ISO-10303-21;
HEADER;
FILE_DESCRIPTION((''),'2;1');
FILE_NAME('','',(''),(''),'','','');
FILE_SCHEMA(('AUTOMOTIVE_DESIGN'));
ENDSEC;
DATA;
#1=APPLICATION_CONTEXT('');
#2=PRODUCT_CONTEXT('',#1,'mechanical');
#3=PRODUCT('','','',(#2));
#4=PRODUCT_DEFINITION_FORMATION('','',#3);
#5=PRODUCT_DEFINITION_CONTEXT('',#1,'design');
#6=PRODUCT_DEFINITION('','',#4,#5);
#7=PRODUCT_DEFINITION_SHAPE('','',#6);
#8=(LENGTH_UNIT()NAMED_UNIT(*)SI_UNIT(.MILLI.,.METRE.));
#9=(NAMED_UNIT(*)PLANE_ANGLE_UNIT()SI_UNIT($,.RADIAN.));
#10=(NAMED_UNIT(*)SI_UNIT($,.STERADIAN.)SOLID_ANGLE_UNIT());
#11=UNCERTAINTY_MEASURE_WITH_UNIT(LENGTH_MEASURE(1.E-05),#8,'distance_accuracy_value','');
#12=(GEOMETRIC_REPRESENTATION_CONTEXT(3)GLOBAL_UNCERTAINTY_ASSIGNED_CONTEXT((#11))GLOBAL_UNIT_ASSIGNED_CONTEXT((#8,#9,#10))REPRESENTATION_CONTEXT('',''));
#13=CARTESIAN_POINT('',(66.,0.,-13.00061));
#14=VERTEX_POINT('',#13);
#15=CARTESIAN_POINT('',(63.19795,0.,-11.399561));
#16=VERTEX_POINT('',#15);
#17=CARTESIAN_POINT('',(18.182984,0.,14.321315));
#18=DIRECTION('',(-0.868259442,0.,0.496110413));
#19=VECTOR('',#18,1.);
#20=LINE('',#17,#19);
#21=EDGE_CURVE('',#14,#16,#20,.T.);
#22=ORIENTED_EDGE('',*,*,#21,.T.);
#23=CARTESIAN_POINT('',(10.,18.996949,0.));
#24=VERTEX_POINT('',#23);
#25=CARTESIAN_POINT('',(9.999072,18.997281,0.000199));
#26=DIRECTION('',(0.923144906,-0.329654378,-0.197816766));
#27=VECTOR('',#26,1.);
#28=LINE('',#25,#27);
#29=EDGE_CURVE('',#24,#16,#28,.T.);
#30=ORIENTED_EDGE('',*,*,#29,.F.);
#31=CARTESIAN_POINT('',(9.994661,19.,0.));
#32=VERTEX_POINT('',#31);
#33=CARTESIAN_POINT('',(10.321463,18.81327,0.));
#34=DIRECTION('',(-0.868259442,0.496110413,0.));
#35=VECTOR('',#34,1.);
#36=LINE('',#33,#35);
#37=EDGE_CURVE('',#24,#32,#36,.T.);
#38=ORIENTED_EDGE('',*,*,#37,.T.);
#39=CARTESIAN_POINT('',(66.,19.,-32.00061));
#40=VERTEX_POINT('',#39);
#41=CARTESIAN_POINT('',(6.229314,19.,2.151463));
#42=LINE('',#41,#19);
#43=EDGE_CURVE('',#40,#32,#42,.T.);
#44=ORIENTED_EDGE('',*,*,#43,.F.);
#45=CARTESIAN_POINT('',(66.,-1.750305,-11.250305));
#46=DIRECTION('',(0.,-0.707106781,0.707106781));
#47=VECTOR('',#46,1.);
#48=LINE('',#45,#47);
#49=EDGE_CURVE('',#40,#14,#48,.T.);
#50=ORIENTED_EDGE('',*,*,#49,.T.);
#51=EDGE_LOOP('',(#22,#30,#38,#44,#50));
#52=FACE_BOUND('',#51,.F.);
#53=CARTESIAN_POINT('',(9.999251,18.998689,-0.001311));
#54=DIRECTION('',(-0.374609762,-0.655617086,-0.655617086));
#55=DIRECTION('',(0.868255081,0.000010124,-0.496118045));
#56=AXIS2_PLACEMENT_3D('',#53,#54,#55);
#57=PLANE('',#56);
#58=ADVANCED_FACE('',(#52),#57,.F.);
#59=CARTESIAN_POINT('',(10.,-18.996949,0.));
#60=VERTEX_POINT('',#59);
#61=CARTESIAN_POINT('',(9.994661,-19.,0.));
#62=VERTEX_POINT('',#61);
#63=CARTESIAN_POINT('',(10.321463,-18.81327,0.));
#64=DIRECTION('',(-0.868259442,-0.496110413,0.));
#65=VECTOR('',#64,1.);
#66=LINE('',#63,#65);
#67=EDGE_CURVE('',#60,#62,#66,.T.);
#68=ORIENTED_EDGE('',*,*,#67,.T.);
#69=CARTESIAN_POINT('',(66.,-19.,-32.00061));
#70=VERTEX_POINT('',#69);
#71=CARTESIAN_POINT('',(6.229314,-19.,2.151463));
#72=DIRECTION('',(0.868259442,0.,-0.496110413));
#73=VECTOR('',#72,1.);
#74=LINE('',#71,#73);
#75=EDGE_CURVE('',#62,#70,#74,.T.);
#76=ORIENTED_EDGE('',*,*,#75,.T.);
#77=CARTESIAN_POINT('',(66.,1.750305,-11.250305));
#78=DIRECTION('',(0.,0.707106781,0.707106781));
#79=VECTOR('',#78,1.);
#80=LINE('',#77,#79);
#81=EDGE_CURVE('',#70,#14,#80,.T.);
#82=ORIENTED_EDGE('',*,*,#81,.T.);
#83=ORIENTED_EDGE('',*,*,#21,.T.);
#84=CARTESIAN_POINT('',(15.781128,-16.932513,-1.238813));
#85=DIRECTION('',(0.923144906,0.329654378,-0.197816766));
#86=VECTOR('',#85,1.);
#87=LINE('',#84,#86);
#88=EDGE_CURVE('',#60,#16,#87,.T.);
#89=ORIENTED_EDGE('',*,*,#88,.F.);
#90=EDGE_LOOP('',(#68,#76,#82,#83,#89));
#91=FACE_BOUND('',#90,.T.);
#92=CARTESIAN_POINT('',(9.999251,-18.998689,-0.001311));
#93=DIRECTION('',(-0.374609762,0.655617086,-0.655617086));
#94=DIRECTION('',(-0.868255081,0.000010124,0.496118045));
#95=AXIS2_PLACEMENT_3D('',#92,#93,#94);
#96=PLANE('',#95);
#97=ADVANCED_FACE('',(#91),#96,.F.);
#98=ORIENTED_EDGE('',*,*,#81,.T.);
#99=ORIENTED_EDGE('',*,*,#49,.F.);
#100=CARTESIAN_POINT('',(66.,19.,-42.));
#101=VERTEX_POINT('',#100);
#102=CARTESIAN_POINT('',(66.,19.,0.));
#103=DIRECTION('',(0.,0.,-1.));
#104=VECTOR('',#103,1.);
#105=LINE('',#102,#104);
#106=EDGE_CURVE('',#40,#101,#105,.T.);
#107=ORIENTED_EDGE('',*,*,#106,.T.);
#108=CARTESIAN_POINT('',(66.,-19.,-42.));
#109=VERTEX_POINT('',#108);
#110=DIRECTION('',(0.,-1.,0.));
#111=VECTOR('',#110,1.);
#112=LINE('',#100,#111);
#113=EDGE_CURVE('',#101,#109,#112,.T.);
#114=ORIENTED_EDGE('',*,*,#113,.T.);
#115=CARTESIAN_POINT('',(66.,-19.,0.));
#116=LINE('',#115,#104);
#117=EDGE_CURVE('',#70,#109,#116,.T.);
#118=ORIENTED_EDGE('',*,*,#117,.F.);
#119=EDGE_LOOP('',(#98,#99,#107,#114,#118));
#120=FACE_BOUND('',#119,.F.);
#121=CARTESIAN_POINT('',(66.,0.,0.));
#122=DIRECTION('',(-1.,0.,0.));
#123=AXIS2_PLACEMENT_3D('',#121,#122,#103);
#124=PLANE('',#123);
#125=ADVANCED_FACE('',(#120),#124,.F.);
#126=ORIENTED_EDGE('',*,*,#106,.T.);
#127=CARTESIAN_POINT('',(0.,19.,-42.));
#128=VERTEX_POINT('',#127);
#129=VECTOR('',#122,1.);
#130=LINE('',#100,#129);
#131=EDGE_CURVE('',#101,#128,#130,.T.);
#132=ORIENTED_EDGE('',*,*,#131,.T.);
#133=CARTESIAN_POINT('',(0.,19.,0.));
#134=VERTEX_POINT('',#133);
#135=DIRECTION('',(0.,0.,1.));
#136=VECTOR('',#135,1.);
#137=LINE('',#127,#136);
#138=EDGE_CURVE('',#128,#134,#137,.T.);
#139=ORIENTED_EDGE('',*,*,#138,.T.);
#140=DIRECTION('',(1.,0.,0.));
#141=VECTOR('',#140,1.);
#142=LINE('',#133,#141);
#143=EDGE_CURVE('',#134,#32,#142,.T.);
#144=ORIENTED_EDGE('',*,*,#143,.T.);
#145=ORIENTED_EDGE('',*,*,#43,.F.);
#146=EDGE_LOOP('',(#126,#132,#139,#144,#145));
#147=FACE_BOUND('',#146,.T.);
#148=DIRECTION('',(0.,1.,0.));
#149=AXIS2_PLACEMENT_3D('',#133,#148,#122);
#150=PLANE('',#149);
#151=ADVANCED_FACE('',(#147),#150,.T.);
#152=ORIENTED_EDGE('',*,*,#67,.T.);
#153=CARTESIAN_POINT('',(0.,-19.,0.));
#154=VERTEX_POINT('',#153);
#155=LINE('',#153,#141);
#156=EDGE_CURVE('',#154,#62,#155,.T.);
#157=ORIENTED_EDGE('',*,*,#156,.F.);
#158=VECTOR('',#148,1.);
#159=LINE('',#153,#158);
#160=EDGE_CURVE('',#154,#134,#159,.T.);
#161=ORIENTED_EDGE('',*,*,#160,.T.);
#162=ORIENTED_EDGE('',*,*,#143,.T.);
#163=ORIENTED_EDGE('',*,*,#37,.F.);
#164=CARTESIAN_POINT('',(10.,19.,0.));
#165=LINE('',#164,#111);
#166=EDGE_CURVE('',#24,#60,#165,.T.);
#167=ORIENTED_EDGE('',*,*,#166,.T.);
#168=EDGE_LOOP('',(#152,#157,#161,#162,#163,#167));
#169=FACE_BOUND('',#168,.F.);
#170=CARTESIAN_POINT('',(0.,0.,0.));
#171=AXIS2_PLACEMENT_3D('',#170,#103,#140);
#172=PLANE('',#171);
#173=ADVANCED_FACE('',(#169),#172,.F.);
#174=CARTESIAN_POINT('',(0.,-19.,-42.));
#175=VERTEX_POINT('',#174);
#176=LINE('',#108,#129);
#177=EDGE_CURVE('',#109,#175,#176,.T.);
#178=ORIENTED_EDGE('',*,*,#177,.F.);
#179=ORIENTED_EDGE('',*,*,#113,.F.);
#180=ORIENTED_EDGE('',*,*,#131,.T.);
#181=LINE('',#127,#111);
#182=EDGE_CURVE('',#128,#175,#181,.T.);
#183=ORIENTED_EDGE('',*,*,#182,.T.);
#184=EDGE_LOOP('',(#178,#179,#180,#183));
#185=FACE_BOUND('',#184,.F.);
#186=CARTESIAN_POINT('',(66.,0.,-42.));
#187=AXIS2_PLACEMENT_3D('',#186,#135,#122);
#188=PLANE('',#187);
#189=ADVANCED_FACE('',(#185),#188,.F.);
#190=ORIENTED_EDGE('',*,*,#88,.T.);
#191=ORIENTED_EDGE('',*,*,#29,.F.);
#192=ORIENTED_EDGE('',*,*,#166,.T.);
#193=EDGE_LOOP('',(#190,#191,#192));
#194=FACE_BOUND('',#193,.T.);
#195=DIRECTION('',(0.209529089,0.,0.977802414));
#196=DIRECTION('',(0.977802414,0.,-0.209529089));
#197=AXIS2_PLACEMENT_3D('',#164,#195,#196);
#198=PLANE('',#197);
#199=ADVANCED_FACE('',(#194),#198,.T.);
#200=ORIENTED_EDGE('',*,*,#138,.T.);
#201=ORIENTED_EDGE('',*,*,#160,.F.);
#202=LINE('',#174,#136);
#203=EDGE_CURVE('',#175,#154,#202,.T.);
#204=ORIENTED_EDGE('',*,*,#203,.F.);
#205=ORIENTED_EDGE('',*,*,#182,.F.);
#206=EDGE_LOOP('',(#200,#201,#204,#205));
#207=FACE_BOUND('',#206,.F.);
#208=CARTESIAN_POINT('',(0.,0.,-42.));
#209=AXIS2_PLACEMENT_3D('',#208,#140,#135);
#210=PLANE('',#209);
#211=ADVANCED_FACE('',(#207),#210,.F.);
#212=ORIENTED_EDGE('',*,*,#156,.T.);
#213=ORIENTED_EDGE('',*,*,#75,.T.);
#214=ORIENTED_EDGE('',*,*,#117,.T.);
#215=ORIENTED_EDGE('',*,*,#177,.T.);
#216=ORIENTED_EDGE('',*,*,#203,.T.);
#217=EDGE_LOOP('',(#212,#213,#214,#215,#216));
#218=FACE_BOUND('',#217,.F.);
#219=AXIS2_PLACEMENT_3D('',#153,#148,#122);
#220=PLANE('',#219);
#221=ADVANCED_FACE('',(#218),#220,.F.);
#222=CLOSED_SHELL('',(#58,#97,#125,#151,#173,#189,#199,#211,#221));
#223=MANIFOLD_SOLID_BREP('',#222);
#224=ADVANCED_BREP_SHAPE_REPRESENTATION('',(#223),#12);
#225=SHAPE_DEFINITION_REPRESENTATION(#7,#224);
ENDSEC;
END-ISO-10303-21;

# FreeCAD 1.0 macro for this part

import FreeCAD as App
import Part
import Sketcher

V = App.Vector
Q = App.Units.Quantity

doc = App.newDocument("Part")
params = doc.addObject("Spreadsheet::Sheet", "Params")
for row, (alias, value) in enumerate([
    ("sketch1_width", "66 mm"),
    ("sketch1_height", "42 mm"),
    ("pad1_length", "38 mm"),
    ("sketch2_width", "56 mm"),
    ("sketch2_height", "12 mm"),
    ("pocket1_length", "40 mm"),
    ("pocket2_length", "40 mm"),
], start=1):
    params.set(f"A{row}", alias)
    params.set(f"B{row}", "=" + value)
    params.setAlias(f"B{row}", alias)

body = doc.addObject("PartDesign::Body", "Body")

sketch1 = doc.addObject("Sketcher::SketchObject", "Sketch")
body.addObject(sketch1)
sketch1.AttachmentSupport = (doc.XZ_Plane, [""])
sketch1.MapMode = "FlatFace"
sketch1.addGeometry([
    Part.LineSegment(V(0, -42, 0), V(0, 0, 0)),
    Part.LineSegment(V(0, 0, 0), V(66, 0, 0)),
    Part.LineSegment(V(66, 0, 0), V(66, -42, 0)),
    Part.LineSegment(V(66, -42, 0), V(0, -42, 0)),
], False)
sketch1.addConstraint([
    Sketcher.Constraint("Coincident", 0, 2, 1, 1),
    Sketcher.Constraint("Coincident", 1, 2, 2, 1),
    Sketcher.Constraint("Coincident", 2, 2, 3, 1),
    Sketcher.Constraint("Coincident", 3, 2, 0, 1),
    Sketcher.Constraint("Vertical", 0),
    Sketcher.Constraint("Horizontal", 1),
    Sketcher.Constraint("Vertical", 2),
    Sketcher.Constraint("Horizontal", 3),
    Sketcher.Constraint("Coincident", 0, 2, -1, 1),
    Sketcher.Constraint("DistanceX", 1, 1, 1, 2, Q("66 mm")),
    Sketcher.Constraint("DistanceY", 0, 1, 0, 2, Q("42 mm")),
])
sketch1.setExpression("Constraints[9]", "Params.sketch1_width")
sketch1.setExpression("Constraints[10]", "Params.sketch1_height")
pad1 = doc.addObject("PartDesign::Pad", "Pad")
body.addObject(pad1)
pad1.Profile = sketch1
pad1.setExpression("Length", "Params.pad1_length")
pad1.Midplane = True

sketch2 = doc.addObject("Sketcher::SketchObject", "Sketch001")
body.addObject(sketch2)
sketch2.AttachmentSupport = (doc.XZ_Plane, [""])
sketch2.MapMode = "FlatFace"
sketch2.AttachmentOffset = App.Placement(V(0, 0, -19), App.Rotation())
sketch2.addGeometry([
    Part.LineSegment(V(66, -12, 0), V(10, 0, 0)),
    Part.LineSegment(V(10, 0, 0), V(66, 0, 0)),
    Part.LineSegment(V(66, 0, 0), V(66, -12, 0)),
], False)
sketch2.addConstraint([
    Sketcher.Constraint("Coincident", 0, 2, 1, 1),
    Sketcher.Constraint("Coincident", 1, 2, 2, 1),
    Sketcher.Constraint("Coincident", 2, 2, 0, 1),
    Sketcher.Constraint("Horizontal", 1),
    Sketcher.Constraint("Vertical", 2),
    Sketcher.Constraint("PointOnObject", 0, 2, -1),
    Sketcher.Constraint("DistanceX", -1, 1, 0, 2, Q("10 mm")),
    Sketcher.Constraint("DistanceX", 1, 1, 1, 2, Q("56 mm")),
    Sketcher.Constraint("DistanceY", 2, 2, 2, 1, Q("12 mm")),
])
sketch2.setExpression("Constraints[7]", "Params.sketch2_width")
sketch2.setExpression("Constraints[8]", "Params.sketch2_height")
pocket1 = doc.addObject("PartDesign::Pocket", "Pocket")
body.addObject(pocket1)
pocket1.Profile = sketch2
pocket1.setExpression("Length", "Params.pocket1_length")
pocket1.Reversed = True

sketch3 = doc.addObject("Sketcher::SketchObject", "Sketch002")
body.addObject(sketch3)
sketch3.Placement = App.Placement(V(10, 19, 0), App.Rotation(V(0.868255081, 0.000010124, -0.496118045), V(0.325270104, -0.755093529, 0.569239074), V(-0.374609762, -0.655617086, -0.655617086), "ZXY"))
sketch3.addGeometry([
    Part.LineSegment(V(-15, 29, 0), V(-15, -12, 0)),
    Part.LineSegment(V(-15, -12, 0), V(94, -12, 0)),
    Part.LineSegment(V(94, -12, 0), V(94, 29, 0)),
    Part.LineSegment(V(94, 29, 0), V(-15, 29, 0)),
], False)
sketch3.addConstraint([
    Sketcher.Constraint("Coincident", 0, 2, 1, 1),
    Sketcher.Constraint("Coincident", 1, 2, 2, 1),
    Sketcher.Constraint("Coincident", 2, 2, 3, 1),
    Sketcher.Constraint("Coincident", 3, 2, 0, 1),
    Sketcher.Constraint("Vertical", 0),
    Sketcher.Constraint("Horizontal", 1),
    Sketcher.Constraint("Vertical", 2),
    Sketcher.Constraint("Horizontal", 3),
    Sketcher.Constraint("DistanceX", 1, 1, 1, 2, Q("108.8713 mm")),
    Sketcher.Constraint("DistanceY", 0, 2, 0, 1, Q("41.1384 mm")),
    Sketcher.Constraint("DistanceX", -1, 1, 1, 2, Q("93.717 mm")),
    Sketcher.Constraint("DistanceY", 0, 2, -1, 1, Q("12.3218 mm")),
])
pocket2 = doc.addObject("PartDesign::Pocket", "Pocket001")
body.addObject(pocket2)
pocket2.Profile = sketch3
pocket2.setExpression("Length", "Params.pocket2_length")
doc.recompute()

mirrored = doc.addObject("PartDesign::Mirrored", "Mirrored")
body.addObject(mirrored)
mirrored.Originals = [pocket2]
mirrored.MirrorPlane = (doc.XZ_Plane, [""])
body.Tip = mirrored

doc.recompute()
